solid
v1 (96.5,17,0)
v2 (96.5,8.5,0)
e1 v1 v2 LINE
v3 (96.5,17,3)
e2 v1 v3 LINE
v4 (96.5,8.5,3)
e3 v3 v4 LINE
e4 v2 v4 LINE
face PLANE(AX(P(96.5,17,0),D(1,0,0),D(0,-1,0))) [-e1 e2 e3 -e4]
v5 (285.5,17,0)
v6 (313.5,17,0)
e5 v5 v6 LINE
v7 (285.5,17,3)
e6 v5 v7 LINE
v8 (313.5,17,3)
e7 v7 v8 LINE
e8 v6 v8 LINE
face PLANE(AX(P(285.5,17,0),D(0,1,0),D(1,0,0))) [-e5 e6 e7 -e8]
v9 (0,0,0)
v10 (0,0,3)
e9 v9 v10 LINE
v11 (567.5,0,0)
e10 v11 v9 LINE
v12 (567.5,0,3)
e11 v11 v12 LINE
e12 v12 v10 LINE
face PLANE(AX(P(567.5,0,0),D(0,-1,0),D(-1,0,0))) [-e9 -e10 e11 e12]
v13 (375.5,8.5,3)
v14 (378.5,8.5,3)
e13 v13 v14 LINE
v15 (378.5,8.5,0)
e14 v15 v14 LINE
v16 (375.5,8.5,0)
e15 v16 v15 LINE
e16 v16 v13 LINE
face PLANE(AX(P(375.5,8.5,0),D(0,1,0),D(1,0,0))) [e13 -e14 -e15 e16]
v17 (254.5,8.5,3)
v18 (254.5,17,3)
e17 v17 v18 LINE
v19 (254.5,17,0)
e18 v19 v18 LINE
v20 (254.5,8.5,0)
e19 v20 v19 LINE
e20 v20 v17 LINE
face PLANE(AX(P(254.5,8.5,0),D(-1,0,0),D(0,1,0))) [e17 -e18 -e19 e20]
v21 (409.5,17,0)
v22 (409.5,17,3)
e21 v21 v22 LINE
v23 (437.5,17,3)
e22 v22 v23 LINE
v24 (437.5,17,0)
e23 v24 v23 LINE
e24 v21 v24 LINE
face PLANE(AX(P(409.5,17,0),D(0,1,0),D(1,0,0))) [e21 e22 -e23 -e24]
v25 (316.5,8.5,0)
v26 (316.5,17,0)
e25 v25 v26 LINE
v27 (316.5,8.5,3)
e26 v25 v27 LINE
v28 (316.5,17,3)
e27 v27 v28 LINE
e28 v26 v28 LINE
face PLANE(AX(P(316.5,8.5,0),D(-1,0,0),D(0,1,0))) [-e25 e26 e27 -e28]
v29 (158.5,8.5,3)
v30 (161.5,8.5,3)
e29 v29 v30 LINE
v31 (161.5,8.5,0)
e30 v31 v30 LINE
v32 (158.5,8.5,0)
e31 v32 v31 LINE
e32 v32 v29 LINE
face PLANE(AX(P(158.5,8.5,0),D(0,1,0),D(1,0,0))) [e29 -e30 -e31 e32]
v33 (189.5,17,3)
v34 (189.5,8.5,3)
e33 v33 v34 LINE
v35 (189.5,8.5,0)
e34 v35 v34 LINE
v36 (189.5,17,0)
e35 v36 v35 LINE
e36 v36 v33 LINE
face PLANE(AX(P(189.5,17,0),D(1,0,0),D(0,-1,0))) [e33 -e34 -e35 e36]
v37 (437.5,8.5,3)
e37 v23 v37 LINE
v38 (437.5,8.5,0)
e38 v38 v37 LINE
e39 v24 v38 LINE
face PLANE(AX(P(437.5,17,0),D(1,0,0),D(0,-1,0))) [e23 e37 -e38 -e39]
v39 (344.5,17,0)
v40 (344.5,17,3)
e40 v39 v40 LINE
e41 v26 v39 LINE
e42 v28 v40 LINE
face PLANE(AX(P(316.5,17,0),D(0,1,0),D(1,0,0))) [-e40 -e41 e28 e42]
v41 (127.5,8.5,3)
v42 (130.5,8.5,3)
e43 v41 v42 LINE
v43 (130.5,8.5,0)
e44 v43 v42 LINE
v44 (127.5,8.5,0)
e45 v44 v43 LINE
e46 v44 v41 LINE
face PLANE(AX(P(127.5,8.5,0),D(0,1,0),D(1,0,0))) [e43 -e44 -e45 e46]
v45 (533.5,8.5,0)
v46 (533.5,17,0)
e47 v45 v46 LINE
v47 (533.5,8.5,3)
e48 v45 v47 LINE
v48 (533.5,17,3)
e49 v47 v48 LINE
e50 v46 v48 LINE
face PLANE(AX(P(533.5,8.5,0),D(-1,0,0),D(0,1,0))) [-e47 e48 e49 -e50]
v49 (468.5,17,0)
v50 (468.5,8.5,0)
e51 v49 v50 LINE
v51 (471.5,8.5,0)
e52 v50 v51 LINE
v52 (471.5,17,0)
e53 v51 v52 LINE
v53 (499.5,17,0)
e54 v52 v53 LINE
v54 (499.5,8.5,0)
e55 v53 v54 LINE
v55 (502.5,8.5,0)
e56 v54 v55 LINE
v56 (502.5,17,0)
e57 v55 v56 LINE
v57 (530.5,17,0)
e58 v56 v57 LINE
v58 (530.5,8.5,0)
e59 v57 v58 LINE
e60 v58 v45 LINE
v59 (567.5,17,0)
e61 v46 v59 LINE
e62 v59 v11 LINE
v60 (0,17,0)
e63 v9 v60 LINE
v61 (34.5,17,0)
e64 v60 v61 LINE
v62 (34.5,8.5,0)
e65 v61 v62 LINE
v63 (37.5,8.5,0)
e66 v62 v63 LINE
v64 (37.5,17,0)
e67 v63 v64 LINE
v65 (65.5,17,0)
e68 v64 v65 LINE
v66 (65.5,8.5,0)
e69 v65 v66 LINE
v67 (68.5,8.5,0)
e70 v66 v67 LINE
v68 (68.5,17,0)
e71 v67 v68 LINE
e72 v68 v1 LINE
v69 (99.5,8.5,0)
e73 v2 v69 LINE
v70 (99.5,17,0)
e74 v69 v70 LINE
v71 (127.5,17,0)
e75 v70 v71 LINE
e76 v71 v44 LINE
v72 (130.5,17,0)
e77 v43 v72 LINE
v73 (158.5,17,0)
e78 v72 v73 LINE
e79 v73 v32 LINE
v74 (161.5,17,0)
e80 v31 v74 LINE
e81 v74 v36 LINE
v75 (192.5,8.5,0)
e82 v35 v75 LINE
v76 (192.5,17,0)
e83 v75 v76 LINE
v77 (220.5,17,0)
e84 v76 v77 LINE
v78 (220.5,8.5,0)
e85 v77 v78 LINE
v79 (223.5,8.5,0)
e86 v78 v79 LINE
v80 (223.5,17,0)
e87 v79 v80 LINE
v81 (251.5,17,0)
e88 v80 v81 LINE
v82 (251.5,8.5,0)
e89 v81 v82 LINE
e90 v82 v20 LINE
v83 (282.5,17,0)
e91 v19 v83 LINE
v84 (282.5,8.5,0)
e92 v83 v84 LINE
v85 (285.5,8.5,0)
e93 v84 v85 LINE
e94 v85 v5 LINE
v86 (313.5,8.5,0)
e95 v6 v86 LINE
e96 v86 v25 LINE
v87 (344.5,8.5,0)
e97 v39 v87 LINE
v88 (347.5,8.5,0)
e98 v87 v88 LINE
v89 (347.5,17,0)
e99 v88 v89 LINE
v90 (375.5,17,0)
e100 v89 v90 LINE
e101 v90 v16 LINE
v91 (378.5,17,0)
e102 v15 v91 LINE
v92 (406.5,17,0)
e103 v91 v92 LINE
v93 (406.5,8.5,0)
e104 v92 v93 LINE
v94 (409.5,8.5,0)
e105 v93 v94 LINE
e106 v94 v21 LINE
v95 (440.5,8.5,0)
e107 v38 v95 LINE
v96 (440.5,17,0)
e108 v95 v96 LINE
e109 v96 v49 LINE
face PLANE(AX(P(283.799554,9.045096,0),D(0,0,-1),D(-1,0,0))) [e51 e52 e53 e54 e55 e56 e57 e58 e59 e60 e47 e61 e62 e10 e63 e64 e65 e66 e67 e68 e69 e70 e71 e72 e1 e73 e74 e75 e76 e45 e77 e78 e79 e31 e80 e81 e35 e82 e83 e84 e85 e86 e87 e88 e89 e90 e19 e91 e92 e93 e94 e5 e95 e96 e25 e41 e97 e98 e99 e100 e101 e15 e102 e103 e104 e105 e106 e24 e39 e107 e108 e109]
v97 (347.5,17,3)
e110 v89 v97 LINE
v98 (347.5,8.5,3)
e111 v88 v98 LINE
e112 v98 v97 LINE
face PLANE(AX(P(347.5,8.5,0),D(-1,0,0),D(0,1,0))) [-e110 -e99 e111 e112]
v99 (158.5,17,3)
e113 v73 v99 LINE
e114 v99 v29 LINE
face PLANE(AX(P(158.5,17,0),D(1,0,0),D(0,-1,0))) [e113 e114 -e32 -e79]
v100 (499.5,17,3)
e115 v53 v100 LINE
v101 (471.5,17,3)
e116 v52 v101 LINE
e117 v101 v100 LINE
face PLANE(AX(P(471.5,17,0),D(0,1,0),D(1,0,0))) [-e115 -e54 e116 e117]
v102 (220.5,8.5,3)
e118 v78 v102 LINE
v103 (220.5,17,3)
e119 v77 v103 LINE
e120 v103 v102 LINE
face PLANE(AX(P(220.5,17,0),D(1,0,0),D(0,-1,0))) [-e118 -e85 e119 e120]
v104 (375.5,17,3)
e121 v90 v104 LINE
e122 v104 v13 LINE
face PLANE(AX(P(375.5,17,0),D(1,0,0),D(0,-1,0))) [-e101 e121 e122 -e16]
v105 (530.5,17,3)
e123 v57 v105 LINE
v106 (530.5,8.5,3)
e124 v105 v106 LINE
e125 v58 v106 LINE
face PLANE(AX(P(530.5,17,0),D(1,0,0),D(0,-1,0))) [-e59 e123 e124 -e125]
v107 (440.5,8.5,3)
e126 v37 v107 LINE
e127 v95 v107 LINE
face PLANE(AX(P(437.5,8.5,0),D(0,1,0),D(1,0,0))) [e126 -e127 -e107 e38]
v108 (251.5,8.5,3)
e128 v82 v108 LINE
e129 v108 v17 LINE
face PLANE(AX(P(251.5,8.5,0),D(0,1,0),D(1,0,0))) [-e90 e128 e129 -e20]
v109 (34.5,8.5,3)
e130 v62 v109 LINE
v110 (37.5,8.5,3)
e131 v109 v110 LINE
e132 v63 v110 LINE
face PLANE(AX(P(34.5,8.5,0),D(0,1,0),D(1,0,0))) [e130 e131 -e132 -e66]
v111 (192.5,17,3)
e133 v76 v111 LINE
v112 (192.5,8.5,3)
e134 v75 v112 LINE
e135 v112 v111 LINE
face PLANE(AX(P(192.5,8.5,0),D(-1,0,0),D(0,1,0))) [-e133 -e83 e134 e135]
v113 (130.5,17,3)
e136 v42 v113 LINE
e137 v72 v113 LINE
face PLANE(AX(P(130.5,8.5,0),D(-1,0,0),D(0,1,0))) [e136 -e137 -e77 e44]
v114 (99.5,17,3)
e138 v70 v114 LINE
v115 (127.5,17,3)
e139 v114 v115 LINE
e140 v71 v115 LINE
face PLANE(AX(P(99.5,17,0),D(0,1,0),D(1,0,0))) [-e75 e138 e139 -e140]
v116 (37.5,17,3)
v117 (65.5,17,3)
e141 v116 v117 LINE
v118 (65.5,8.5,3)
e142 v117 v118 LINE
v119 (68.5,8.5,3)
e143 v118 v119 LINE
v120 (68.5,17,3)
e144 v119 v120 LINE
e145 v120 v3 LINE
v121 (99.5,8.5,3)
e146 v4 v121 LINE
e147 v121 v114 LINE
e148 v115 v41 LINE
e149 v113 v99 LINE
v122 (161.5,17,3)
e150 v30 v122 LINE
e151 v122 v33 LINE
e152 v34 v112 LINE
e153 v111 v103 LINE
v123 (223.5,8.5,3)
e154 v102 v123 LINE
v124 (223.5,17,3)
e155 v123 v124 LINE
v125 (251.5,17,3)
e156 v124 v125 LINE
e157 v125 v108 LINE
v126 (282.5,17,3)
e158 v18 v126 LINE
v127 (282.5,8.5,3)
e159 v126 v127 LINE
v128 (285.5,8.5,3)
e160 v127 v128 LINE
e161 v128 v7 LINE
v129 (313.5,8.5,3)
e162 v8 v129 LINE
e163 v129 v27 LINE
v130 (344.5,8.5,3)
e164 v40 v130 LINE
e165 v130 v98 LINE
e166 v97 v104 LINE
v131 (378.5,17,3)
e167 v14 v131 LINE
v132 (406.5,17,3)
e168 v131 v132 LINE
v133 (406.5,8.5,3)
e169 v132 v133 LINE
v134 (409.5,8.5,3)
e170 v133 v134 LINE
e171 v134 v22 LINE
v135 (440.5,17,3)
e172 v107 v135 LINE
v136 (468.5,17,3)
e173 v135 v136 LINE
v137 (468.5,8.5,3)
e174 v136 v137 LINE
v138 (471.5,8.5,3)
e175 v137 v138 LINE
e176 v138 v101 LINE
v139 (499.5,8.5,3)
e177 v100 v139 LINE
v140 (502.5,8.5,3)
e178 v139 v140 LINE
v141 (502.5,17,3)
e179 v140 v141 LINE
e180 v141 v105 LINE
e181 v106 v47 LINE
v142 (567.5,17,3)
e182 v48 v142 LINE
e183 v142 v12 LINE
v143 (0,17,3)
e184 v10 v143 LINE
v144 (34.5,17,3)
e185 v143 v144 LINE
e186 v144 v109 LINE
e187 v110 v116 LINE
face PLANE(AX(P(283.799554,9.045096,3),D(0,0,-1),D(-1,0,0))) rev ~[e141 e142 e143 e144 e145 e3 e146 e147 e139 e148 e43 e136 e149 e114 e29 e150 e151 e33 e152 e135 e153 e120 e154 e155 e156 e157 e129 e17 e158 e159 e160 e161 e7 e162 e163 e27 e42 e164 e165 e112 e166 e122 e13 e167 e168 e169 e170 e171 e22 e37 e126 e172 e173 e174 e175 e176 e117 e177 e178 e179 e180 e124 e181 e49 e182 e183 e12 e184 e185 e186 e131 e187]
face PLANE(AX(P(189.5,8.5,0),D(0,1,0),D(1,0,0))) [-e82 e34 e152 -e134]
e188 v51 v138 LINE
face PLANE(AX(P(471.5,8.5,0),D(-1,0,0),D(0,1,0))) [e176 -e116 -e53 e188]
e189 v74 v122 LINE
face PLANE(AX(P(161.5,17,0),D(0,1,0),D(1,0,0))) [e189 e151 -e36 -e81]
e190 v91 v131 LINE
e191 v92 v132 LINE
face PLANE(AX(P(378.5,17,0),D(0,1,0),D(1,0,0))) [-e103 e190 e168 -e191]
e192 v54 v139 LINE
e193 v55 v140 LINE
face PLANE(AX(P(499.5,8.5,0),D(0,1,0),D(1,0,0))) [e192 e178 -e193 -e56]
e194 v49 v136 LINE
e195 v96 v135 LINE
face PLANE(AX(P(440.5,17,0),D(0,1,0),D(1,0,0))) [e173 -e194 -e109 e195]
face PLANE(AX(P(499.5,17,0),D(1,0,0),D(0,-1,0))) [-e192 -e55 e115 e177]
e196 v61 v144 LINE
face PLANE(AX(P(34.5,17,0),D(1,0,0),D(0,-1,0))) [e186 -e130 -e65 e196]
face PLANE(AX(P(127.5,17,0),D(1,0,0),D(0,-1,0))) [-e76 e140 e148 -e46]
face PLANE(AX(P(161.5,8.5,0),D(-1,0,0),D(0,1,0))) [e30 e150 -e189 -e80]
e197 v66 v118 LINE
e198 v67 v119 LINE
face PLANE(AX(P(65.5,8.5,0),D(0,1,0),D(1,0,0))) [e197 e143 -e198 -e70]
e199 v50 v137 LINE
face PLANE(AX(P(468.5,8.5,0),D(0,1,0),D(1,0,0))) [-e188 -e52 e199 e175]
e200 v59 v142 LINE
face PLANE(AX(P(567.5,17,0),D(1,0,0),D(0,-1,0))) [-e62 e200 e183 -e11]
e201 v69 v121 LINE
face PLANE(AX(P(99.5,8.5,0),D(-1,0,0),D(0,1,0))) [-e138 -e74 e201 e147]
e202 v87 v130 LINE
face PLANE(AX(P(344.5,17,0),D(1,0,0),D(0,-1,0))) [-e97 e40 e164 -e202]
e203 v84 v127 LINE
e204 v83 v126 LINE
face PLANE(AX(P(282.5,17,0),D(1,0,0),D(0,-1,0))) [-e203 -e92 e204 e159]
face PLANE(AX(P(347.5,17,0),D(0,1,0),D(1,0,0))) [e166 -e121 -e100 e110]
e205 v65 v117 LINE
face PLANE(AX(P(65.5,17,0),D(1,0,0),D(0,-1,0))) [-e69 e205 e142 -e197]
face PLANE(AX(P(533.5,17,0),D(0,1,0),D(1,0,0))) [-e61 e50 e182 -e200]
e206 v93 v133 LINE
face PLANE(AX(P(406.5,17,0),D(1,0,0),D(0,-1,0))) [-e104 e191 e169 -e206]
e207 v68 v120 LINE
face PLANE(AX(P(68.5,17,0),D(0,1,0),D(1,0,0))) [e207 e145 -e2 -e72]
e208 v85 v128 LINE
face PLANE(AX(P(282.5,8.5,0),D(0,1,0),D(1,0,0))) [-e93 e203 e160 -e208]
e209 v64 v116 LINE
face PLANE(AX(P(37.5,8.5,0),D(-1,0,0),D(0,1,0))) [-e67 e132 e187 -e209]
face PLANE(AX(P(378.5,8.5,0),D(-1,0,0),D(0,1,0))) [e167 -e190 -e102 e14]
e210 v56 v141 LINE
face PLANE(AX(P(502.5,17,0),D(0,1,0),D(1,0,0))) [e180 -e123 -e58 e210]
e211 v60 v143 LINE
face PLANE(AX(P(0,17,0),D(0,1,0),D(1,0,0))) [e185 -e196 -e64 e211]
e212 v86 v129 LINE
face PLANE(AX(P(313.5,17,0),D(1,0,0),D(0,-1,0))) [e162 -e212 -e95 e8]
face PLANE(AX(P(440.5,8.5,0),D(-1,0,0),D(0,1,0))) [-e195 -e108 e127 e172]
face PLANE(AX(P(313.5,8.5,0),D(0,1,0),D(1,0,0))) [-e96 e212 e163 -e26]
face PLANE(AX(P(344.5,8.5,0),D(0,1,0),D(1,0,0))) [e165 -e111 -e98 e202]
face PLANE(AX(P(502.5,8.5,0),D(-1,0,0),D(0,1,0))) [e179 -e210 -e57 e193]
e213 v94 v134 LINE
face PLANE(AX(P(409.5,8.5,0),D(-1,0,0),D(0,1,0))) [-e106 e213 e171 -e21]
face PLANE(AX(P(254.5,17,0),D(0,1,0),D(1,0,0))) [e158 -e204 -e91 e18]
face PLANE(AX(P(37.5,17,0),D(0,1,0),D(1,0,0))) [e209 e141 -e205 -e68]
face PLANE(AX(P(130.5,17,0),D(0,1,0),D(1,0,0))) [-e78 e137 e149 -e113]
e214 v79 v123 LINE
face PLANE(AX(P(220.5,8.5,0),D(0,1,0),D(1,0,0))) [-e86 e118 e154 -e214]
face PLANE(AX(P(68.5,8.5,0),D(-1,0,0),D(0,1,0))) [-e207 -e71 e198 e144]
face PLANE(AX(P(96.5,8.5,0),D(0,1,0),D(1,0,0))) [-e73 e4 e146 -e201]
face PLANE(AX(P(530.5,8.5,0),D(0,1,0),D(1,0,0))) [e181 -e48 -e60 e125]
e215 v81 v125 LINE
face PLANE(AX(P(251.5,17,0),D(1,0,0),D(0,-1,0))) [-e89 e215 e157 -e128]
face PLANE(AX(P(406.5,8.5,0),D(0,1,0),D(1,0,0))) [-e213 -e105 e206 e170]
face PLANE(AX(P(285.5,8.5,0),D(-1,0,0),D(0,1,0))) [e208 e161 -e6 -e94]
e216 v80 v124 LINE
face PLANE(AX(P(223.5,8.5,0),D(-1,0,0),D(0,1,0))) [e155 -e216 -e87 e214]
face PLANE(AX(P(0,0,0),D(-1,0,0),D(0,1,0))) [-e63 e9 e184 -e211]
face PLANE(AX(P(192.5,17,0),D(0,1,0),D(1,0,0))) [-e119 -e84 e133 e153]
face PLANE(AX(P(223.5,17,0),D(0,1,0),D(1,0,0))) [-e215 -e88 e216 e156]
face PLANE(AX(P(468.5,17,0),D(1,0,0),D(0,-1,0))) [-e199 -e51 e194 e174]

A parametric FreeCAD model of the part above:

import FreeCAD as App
import Part
import Sketcher
from FreeCAD import Vector


def add_polygon(sketch, points):
    """Adds a closed chain of lines whose ends are joined by coincident constraints."""
    first, n = sketch.GeometryCount, len(points)
    for a, b in zip(points, points[1:] + points[:1]):
        sketch.addGeometry(Part.LineSegment(App.Vector(*a, 0), App.Vector(*b, 0)), False)
    for i in range(n):
        sketch.addConstraint(Sketcher.Constraint("Coincident", first + i, 2, first + (i + 1) % n, 1))

doc = App.newDocument("Part")
params = doc.addObject("Spreadsheet::Sheet", "Params")
for row, (alias, value) in enumerate([
    ("sketch1_width", "34 mm"),
    ("sketch1_width2", "3 mm"),
    ("sketch1_width3", "28 mm"),
    ("sketch1_height", "17 mm"),
    ("sketch1_width4", "567.5 mm"),
    ("pad1_length", "3 mm"),
], start=1):
    params.set(f"A{row}", alias)
    params.set(f"B{row}", "=" + value)
    params.setAlias(f"B{row}", alias)

body = doc.addObject("PartDesign::Body", "Body")

sketch1 = doc.addObject("Sketcher::SketchObject", "Sketch")
body.addObject(sketch1)
sketch1.AttachmentSupport = (doc.XY_Plane, [""])
sketch1.MapMode = "FlatFace"
add_polygon(sketch1, [(0, 17), (0, 0), (567.5, 0), (567.5, 17), (533.5, 17), (533.5, 8.5), (530.5, 8.5), (530.5, 17), (502.5, 17), (502.5, 8.5), (499.5, 8.5), (499.5, 17), (471.5, 17), (471.5, 8.5), (468.5, 8.5), (468.5, 17), (440.5, 17), (440.5, 8.5), (437.5, 8.5), (437.5, 17), (409.5, 17), (409.5, 8.5), (406.5, 8.5), (406.5, 17), (378.5, 17), (378.5, 8.5), (375.5, 8.5), (375.5, 17), (347.5, 17), (347.5, 8.5), (344.5, 8.5), (344.5, 17), (316.5, 17), (316.5, 8.5), (313.5, 8.5), (313.5, 17), (285.5, 17), (285.5, 8.5), (282.5, 8.5), (282.5, 17), (254.5, 17), (254.5, 8.5), (251.5, 8.5), (251.5, 17), (223.5, 17), (223.5, 8.5), (220.5, 8.5), (220.5, 17), (192.5, 17), (192.5, 8.5), (189.5, 8.5), (189.5, 17), (161.5, 17), (161.5, 8.5), (158.5, 8.5), (158.5, 17), (130.5, 17), (130.5, 8.5), (127.5, 8.5), (127.5, 17), (99.5, 17), (99.5, 8.5), (96.5, 8.5), (96.5, 17), (68.5, 17), (68.5, 8.5), (65.5, 8.5), (65.5, 17), (37.5, 17), (37.5, 8.5), (34.5, 8.5), (34.5, 17)])
sketch1.addConstraint([
    Sketcher.Constraint("Vertical", 0),
    Sketcher.Constraint("Horizontal", 1),
    Sketcher.Constraint("Vertical", 2),
    Sketcher.Constraint("Horizontal", 3),
    Sketcher.Constraint("Vertical", 4),
    Sketcher.Constraint("Horizontal", 5),
    Sketcher.Constraint("Vertical", 6),
    Sketcher.Constraint("Horizontal", 7),
    Sketcher.Constraint("Vertical", 8),
    Sketcher.Constraint("Horizontal", 9),
    Sketcher.Constraint("Vertical", 10),
    Sketcher.Constraint("Horizontal", 11),
    Sketcher.Constraint("Vertical", 12),
    Sketcher.Constraint("Horizontal", 13),
    Sketcher.Constraint("Vertical", 14),
    Sketcher.Constraint("Horizontal", 15),
    Sketcher.Constraint("Vertical", 16),
    Sketcher.Constraint("Horizontal", 17),
    Sketcher.Constraint("Vertical", 18),
    Sketcher.Constraint("Horizontal", 19),
    Sketcher.Constraint("Vertical", 20),
    Sketcher.Constraint("Horizontal", 21),
    Sketcher.Constraint("Vertical", 22),
    Sketcher.Constraint("Horizontal", 23),
    Sketcher.Constraint("Vertical", 24),
    Sketcher.Constraint("Horizontal", 25),
    Sketcher.Constraint("Vertical", 26),
    Sketcher.Constraint("Horizontal", 27),
    Sketcher.Constraint("Vertical", 28),
    Sketcher.Constraint("Horizontal", 29),
    Sketcher.Constraint("Vertical", 30),
    Sketcher.Constraint("Horizontal", 31),
    Sketcher.Constraint("Vertical", 32),
    Sketcher.Constraint("Horizontal", 33),
    Sketcher.Constraint("Vertical", 34),
    Sketcher.Constraint("Horizontal", 35),
    Sketcher.Constraint("Vertical", 36),
    Sketcher.Constraint("Horizontal", 37),
    Sketcher.Constraint("Vertical", 38),
    Sketcher.Constraint("Horizontal", 39),
    Sketcher.Constraint("Vertical", 40),
    Sketcher.Constraint("Horizontal", 41),
    Sketcher.Constraint("Vertical", 42),
    Sketcher.Constraint("Horizontal", 43),
    Sketcher.Constraint("Vertical", 44),
    Sketcher.Constraint("Horizontal", 45),
    Sketcher.Constraint("Vertical", 46),
    Sketcher.Constraint("Horizontal", 47),
    Sketcher.Constraint("Vertical", 48),
    Sketcher.Constraint("Horizontal", 49),
    Sketcher.Constraint("Vertical", 50),
    Sketcher.Constraint("Horizontal", 51),
    Sketcher.Constraint("Vertical", 52),
    Sketcher.Constraint("Horizontal", 53),
    Sketcher.Constraint("Vertical", 54),
    Sketcher.Constraint("Horizontal", 55),
    Sketcher.Constraint("Vertical", 56),
    Sketcher.Constraint("Horizontal", 57),
    Sketcher.Constraint("Vertical", 58),
    Sketcher.Constraint("Horizontal", 59),
    Sketcher.Constraint("Vertical", 60),
    Sketcher.Constraint("Horizontal", 61),
    Sketcher.Constraint("Vertical", 62),
    Sketcher.Constraint("Horizontal", 63),
    Sketcher.Constraint("Vertical", 64),
    Sketcher.Constraint("Horizontal", 65),
    Sketcher.Constraint("Vertical", 66),
    Sketcher.Constraint("Horizontal", 67),
    Sketcher.Constraint("Vertical", 68),
    Sketcher.Constraint("Horizontal", 69),
    Sketcher.Constraint("Vertical", 70),
    Sketcher.Constraint("Horizontal", 71),
    Sketcher.Constraint("Coincident", 0, 2, -1, 1),
    Sketcher.Constraint("Horizontal", 3, 2, 6, 2),
    Sketcher.Constraint("Horizontal", 5, 2, 8, 2),
    Sketcher.Constraint("Horizontal", 7, 2, 10, 2),
    Sketcher.Constraint("Horizontal", 9, 2, 12, 2),
    Sketcher.Constraint("Horizontal", 11, 2, 14, 2),
    Sketcher.Constraint("Horizontal", 13, 2, 16, 2),
    Sketcher.Constraint("Horizontal", 15, 2, 18, 2),
    Sketcher.Constraint("Horizontal", 17, 2, 20, 2),
    Sketcher.Constraint("Horizontal", 19, 2, 22, 2),
    Sketcher.Constraint("Horizontal", 21, 2, 24, 2),
    Sketcher.Constraint("Horizontal", 23, 2, 26, 2),
    Sketcher.Constraint("Horizontal", 25, 2, 28, 2),
    Sketcher.Constraint("Horizontal", 27, 2, 30, 2),
    Sketcher.Constraint("Horizontal", 29, 2, 32, 2),
    Sketcher.Constraint("Horizontal", 31, 2, 34, 2),
    Sketcher.Constraint("Horizontal", 33, 2, 36, 2),
    Sketcher.Constraint("Horizontal", 35, 2, 38, 2),
    Sketcher.Constraint("Horizontal", 37, 2, 40, 2),
    Sketcher.Constraint("Horizontal", 39, 2, 42, 2),
    Sketcher.Constraint("Horizontal", 41, 2, 44, 2),
    Sketcher.Constraint("Horizontal", 43, 2, 46, 2),
    Sketcher.Constraint("Horizontal", 45, 2, 48, 2),
    Sketcher.Constraint("Horizontal", 47, 2, 50, 2),
    Sketcher.Constraint("Horizontal", 49, 2, 52, 2),
    Sketcher.Constraint("Horizontal", 51, 2, 54, 2),
    Sketcher.Constraint("Horizontal", 53, 2, 56, 2),
    Sketcher.Constraint("Horizontal", 55, 2, 58, 2),
    Sketcher.Constraint("Horizontal", 57, 2, 60, 2),
    Sketcher.Constraint("Horizontal", 59, 2, 62, 2),
    Sketcher.Constraint("Horizontal", 61, 2, 64, 2),
    Sketcher.Constraint("Horizontal", 63, 2, 66, 2),
    Sketcher.Constraint("Horizontal", 65, 2, 68, 2),
    Sketcher.Constraint("Horizontal", 67, 2, 70, 2),
    Sketcher.Constraint("Equal", 5, 9),
    Sketcher.Constraint("Equal", 7, 11),
    Sketcher.Constraint("Equal", 9, 13),
    Sketcher.Constraint("Equal", 11, 15),
    Sketcher.Constraint("Equal", 13, 17),
    Sketcher.Constraint("Equal", 15, 19),
    Sketcher.Constraint("Equal", 17, 21),
    Sketcher.Constraint("Equal", 19, 23),
    Sketcher.Constraint("Equal", 21, 25),
    Sketcher.Constraint("Equal", 23, 27),
    Sketcher.Constraint("Equal", 25, 29),
    Sketcher.Constraint("Equal", 27, 31),
    Sketcher.Constraint("Equal", 29, 33),
    Sketcher.Constraint("Equal", 31, 35),
    Sketcher.Constraint("Equal", 33, 37),
    Sketcher.Constraint("Equal", 35, 39),
    Sketcher.Constraint("Equal", 37, 41),
    Sketcher.Constraint("Equal", 39, 43),
    Sketcher.Constraint("Equal", 41, 45),
    Sketcher.Constraint("Equal", 43, 47),
    Sketcher.Constraint("Equal", 45, 49),
    Sketcher.Constraint("Equal", 47, 51),
    Sketcher.Constraint("Equal", 49, 53),
    Sketcher.Constraint("Equal", 51, 55),
    Sketcher.Constraint("Equal", 53, 57),
    Sketcher.Constraint("Equal", 55, 59),
    Sketcher.Constraint("Equal", 57, 61),
    Sketcher.Constraint("Equal", 59, 63),
    Sketcher.Constraint("Equal", 61, 65),
    Sketcher.Constraint("Equal", 63, 67),
    Sketcher.Constraint("Equal", 65, 69),
    Sketcher.Constraint("DistanceX", 3, 2, 3, 1, 34.0),
    Sketcher.Constraint("DistanceX", 5, 2, 5, 1, 3.0),
    Sketcher.Constraint("DistanceX", 7, 2, 7, 1, 28.0),
    Sketcher.Constraint("DistanceY", 0, 2, 0, 1, 17.0),
    Sketcher.Constraint("DistanceX", 1, 1, 1, 2, 567.5),
    Sketcher.Constraint("DistanceY", 4, 2, 4, 1, 8.5),
])
sketch1.setExpression("Constraints[209]", "Params.sketch1_width")
sketch1.setExpression("Constraints[210]", "Params.sketch1_width2")
sketch1.setExpression("Constraints[211]", "Params.sketch1_width3")
sketch1.setExpression("Constraints[212]", "Params.sketch1_height")
sketch1.setExpression("Constraints[213]", "Params.sketch1_width4")
pad1 = doc.addObject("PartDesign::Pad", "Pad")
body.addObject(pad1)
pad1.Profile = sketch1
pad1.setExpression("Length", "Params.pad1_length")

doc.recompute()
